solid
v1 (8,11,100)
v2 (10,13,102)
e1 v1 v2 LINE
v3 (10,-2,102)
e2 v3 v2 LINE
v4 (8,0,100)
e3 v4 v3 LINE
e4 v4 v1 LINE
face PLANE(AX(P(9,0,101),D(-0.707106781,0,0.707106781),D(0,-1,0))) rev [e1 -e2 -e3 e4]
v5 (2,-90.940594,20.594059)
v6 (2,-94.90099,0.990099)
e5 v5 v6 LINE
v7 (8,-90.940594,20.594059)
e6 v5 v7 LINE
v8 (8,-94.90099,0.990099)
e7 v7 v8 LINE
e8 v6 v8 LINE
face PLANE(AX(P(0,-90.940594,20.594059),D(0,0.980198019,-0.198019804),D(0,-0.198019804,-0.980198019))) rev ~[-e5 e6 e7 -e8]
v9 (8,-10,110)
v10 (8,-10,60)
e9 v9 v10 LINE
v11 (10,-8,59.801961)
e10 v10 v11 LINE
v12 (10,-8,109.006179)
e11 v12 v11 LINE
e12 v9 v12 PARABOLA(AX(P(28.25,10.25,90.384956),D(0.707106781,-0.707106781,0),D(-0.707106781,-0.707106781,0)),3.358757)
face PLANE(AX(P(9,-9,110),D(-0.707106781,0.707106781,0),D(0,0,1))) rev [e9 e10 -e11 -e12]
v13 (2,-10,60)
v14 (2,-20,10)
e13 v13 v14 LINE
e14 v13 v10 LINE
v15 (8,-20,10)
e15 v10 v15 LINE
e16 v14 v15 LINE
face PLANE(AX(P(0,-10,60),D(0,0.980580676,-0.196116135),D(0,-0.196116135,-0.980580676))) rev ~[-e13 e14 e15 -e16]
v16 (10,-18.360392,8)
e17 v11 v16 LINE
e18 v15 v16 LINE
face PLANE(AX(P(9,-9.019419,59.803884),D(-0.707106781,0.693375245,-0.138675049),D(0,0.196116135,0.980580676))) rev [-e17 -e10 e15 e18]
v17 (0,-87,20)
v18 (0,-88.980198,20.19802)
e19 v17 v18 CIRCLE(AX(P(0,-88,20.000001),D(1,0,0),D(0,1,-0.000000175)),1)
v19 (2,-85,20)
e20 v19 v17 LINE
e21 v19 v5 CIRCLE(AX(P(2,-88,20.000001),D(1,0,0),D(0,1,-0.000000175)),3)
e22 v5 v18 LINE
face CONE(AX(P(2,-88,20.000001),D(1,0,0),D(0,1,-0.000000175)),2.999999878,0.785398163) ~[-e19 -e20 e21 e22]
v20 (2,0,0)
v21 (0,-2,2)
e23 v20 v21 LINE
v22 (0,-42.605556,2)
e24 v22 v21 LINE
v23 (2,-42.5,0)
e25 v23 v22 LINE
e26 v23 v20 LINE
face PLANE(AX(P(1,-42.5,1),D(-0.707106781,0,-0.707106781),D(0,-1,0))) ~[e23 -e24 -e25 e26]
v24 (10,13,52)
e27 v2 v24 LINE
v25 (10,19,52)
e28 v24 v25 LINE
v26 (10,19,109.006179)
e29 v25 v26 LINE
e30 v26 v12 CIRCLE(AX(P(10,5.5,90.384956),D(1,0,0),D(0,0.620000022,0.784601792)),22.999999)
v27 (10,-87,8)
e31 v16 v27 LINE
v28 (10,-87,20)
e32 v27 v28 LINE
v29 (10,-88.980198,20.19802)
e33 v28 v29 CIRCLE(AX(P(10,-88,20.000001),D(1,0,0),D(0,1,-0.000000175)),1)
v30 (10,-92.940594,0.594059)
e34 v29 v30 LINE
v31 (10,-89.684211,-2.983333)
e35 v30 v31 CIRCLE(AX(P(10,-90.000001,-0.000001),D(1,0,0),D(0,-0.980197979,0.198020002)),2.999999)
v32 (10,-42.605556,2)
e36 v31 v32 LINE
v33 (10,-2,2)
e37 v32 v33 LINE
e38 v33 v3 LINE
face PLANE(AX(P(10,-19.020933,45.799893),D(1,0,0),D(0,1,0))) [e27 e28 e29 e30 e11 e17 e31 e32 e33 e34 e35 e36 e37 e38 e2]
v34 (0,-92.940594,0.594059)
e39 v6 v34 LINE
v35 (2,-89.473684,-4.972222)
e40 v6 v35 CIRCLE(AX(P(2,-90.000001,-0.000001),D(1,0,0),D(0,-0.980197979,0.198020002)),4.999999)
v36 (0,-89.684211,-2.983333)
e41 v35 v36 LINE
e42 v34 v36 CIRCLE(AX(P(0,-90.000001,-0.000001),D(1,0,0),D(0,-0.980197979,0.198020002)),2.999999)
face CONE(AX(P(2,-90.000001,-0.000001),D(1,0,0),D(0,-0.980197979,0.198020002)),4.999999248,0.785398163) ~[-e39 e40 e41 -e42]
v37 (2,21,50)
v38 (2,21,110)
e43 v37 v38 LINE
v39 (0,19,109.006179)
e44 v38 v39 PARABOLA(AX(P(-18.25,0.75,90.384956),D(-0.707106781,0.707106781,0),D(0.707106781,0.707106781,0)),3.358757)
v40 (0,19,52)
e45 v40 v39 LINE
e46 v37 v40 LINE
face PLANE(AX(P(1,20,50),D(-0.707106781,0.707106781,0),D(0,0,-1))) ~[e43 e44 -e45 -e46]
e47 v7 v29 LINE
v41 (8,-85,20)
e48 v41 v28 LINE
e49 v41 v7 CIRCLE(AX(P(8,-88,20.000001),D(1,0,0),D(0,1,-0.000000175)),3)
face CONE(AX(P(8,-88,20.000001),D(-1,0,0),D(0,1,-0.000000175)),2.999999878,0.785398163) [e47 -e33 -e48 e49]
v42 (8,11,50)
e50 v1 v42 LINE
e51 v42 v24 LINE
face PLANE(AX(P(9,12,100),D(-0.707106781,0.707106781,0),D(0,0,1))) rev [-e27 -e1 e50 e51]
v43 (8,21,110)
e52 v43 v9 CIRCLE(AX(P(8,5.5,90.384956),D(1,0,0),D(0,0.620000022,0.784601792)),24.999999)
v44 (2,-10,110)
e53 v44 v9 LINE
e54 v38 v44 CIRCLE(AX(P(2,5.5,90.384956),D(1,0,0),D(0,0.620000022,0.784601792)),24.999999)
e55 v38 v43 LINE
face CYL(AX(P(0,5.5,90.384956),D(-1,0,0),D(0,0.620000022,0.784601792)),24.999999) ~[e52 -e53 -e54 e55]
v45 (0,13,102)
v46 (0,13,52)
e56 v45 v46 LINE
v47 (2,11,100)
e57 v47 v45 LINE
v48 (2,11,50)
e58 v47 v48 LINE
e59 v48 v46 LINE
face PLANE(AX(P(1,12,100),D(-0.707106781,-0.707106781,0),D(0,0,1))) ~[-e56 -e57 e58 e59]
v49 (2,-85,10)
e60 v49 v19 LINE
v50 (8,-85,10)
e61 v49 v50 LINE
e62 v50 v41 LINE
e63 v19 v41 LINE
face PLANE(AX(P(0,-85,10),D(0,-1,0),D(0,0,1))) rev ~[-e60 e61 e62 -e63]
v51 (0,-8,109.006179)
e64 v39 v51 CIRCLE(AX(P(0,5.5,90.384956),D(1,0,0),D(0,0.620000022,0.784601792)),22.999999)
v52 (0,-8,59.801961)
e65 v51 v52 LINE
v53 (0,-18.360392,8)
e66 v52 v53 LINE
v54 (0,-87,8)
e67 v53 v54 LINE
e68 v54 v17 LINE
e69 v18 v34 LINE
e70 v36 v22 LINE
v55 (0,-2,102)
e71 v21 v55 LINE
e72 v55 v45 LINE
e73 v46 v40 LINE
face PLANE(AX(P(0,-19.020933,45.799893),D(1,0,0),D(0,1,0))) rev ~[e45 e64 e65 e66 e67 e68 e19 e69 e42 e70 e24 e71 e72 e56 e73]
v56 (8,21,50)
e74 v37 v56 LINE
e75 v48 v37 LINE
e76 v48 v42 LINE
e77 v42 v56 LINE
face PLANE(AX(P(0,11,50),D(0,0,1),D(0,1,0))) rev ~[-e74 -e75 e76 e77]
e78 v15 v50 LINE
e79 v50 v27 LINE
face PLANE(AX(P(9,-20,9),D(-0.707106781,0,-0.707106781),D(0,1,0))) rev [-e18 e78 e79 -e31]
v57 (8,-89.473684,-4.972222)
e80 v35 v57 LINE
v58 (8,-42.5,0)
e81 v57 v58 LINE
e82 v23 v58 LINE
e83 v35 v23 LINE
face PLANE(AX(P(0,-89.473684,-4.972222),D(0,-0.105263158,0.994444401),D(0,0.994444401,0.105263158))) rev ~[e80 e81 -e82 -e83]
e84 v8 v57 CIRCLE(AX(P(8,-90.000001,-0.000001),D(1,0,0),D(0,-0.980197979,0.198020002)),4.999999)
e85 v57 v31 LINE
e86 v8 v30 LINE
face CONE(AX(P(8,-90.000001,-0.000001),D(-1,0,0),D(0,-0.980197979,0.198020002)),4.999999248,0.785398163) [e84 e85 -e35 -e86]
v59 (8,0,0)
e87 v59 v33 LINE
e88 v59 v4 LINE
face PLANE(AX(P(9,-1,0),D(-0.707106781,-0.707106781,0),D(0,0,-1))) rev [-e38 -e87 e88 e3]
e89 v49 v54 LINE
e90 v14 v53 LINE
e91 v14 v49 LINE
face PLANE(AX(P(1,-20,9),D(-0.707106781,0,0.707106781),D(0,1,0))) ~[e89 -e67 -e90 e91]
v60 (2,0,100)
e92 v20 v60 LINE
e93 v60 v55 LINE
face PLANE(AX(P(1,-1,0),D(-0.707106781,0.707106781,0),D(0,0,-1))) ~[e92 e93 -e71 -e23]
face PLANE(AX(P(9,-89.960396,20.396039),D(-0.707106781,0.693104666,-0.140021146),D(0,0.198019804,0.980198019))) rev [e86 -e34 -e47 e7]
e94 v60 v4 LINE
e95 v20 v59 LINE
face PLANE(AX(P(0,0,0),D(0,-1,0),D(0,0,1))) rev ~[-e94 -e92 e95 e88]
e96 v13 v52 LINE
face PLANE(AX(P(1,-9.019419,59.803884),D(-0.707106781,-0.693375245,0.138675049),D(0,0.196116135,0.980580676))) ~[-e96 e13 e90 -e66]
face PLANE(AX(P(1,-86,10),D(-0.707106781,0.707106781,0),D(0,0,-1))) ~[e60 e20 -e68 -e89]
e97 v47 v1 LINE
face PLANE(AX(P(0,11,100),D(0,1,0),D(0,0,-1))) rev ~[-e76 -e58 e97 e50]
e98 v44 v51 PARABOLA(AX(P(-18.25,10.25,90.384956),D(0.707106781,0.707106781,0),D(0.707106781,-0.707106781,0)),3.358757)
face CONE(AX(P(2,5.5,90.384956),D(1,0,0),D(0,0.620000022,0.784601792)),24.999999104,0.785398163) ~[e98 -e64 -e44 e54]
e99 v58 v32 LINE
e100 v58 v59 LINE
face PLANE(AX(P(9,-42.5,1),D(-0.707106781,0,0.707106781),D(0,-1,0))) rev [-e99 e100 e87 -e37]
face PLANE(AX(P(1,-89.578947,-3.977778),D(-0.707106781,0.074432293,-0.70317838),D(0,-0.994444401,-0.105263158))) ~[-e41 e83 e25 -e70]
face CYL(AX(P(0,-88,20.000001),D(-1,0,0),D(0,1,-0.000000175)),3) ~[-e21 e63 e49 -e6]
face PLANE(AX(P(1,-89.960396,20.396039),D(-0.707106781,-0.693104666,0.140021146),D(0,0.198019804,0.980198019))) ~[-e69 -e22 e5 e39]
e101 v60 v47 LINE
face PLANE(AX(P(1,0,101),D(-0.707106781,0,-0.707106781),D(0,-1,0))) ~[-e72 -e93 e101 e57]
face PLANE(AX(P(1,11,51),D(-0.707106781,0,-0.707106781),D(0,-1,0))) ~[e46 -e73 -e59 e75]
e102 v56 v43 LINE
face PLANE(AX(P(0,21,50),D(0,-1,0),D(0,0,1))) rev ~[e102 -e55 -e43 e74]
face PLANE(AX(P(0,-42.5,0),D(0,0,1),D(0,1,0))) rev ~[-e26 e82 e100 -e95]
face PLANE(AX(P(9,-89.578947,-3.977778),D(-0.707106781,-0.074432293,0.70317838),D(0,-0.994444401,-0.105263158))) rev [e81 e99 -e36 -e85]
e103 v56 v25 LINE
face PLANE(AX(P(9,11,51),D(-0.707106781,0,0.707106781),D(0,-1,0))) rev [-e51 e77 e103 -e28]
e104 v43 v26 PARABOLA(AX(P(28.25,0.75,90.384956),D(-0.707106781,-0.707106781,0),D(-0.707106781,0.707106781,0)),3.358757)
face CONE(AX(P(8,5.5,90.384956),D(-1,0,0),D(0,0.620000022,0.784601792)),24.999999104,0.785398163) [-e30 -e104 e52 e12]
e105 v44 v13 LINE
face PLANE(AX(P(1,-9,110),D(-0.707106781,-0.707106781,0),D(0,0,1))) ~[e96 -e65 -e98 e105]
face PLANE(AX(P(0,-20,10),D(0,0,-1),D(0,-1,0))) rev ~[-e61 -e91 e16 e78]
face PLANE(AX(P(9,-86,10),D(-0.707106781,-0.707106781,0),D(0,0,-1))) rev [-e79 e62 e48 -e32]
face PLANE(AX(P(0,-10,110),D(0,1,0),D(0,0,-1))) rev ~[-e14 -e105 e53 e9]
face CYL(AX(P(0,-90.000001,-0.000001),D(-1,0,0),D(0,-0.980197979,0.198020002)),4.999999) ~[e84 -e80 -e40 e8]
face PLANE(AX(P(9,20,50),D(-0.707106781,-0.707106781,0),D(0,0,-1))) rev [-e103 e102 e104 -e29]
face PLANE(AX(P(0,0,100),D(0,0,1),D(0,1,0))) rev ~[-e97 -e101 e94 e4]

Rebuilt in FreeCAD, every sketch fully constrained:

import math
import FreeCAD as App
import Part
import Sketcher


def edges_at(feature, points):
    """Names of the edges that pass closest to the given points."""
    edges = feature.Shape.Edges
    near = lambda p: min(range(len(edges)), key=lambda i: edges[i].distToShape(Part.Vertex(*p))[0])
    return sorted({f"Edge{near(p) + 1}" for p in points})

doc = App.newDocument("Part")
body = doc.addObject("PartDesign::Body", "Body")

# Sketch on YZ plane
sketch1 = doc.addObject("Sketcher::SketchObject", "Sketch")
body.addObject(sketch1)
sketch1.AttachmentSupport = (doc.YZ_Plane, [""])
sketch1.MapMode = "FlatFace"
sketch1.addGeometry([
    Part.LineSegment(App.Vector(-42.5, 0, 0), App.Vector(0, 0, 0)),  # 0
    Part.LineSegment(App.Vector(0, 0, 0), App.Vector(0, 100, 0)),  # 1
    Part.LineSegment(App.Vector(0, 100, 0), App.Vector(11, 100, 0)),  # 2
    Part.LineSegment(App.Vector(11, 100, 0), App.Vector(11, 50, 0)),  # 3
    Part.LineSegment(App.Vector(11, 50, 0), App.Vector(21, 50, 0)),  # 4
    Part.LineSegment(App.Vector(21, 50, 0), App.Vector(21, 110, 0)),  # 5
    Part.ArcOfCircle(Part.Circle(App.Vector(5.5, 90.4, 0), App.Vector(0, 0, 1), 25), math.radians(52), math.radians(128)),  # 6
    Part.LineSegment(App.Vector(-10, 110, 0), App.Vector(-10, 60, 0)),  # 7
    Part.LineSegment(App.Vector(-10, 60, 0), App.Vector(-20, 10, 0)),  # 8
    Part.LineSegment(App.Vector(-20, 10, 0), App.Vector(-85, 10, 0)),  # 9
    Part.LineSegment(App.Vector(-85, 10, 0), App.Vector(-85, 20, 0)),  # 10
    Part.ArcOfCircle(Part.Circle(App.Vector(-88, 20, 0), App.Vector(0, 0, 1), 3), math.radians(0), math.radians(169)),  # 11
    Part.LineSegment(App.Vector(-90.9, 20.6, 0), App.Vector(-94.9, 1, 0)),  # 12
    Part.ArcOfCircle(Part.Circle(App.Vector(-90, 0, 0), App.Vector(0, 0, 1), 5), math.radians(169), math.radians(276)),  # 13
    Part.LineSegment(App.Vector(-89.5, -5, 0), App.Vector(-42.5, 0, 0)),  # 14
], False)
sketch1.addConstraint([
    Sketcher.Constraint("Coincident", 0, 2, 1, 1),
    Sketcher.Constraint("Coincident", 1, 2, 2, 1),
    Sketcher.Constraint("Coincident", 2, 2, 3, 1),
    Sketcher.Constraint("Coincident", 3, 2, 4, 1),
    Sketcher.Constraint("Coincident", 4, 2, 5, 1),
    Sketcher.Constraint("Coincident", 5, 2, 6, 1),
    Sketcher.Constraint("Coincident", 6, 2, 7, 1),
    Sketcher.Constraint("Coincident", 7, 2, 8, 1),
    Sketcher.Constraint("Coincident", 8, 2, 9, 1),
    Sketcher.Constraint("Coincident", 9, 2, 10, 1),
    Sketcher.Constraint("Tangent", 10, 2, 11, 1),
    Sketcher.Constraint("Tangent", 11, 2, 12, 1),
    Sketcher.Constraint("Tangent", 12, 2, 13, 1),
    Sketcher.Constraint("Tangent", 13, 2, 14, 1),
    Sketcher.Constraint("Coincident", 14, 2, 0, 1),
    Sketcher.Constraint("Horizontal", 0),
    Sketcher.Constraint("Vertical", 1),
    Sketcher.Constraint("Horizontal", 2),
    Sketcher.Constraint("Vertical", 3),
    Sketcher.Constraint("Horizontal", 4),
    Sketcher.Constraint("Vertical", 5),
    Sketcher.Constraint("Vertical", 7),
    Sketcher.Constraint("Horizontal", 9),
    Sketcher.Constraint("Vertical", 10),
    Sketcher.Constraint("Coincident", 0, 2, -1, 1),
    Sketcher.Constraint("PointOnObject", 13, 3, -1),
    Sketcher.Constraint("Horizontal", 5, 2, 6, 2),
    Sketcher.Constraint("Equal", 3, 7),
    Sketcher.Constraint("Equal", 4, 10),
    Sketcher.Constraint("Radius", 6, 24.999999),
    Sketcher.Constraint("Radius", 11, 3.0),
    Sketcher.Constraint("Radius", 13, 4.999999),
    Sketcher.Constraint("DistanceX", 2, 1, 2, 2, 11.0),
    Sketcher.Constraint("DistanceX", 4, 1, 4, 2, 10.0),
    Sketcher.Constraint("DistanceX", 9, 2, 9, 1, 65.0),
    Sketcher.Constraint("DistanceY", 1, 1, 1, 2, 100.0),
    Sketcher.Constraint("DistanceY", 3, 2, 3, 1, 50.0),
    Sketcher.Constraint("DistanceY", 5, 1, 5, 2, 60.0),
    Sketcher.Constraint("Distance", 12, 20.0),
    Sketcher.Constraint("DistanceX", 0, 1, 0, 2, 42.5),
    Sketcher.Constraint("DistanceX", 11, 3, -1, 1, 88.0),
    Sketcher.Constraint("DistanceY", -1, 1, 11, 3, 20.000001),
    Sketcher.Constraint("DistanceX", 6, 2, -1, 1, 10.0),
])
pad1 = doc.addObject("PartDesign::Pad", "Pad")
body.addObject(pad1)
pad1.Profile = sketch1
pad1.Length = 10
doc.recompute()

chamfer = doc.addObject("PartDesign::Chamfer", "Chamfer")
body.addObject(chamfer)
chamfer.Base = (pad1, edges_at(pad1, [
    (0, -93.698, -3.366),
    (0, -65.987, -2.486),
    (0, -21.25, 0),
    (0, 0, 50),
    (0, 5.5, 100),
    (0, 11, 75),
    (0, 16, 50),
    (0, 21, 80),
    (0, 5.5, 115.385),
    (0, -10, 85),
    (0, -15, 35),
    (0, -52.5, 10),
    (0, -85, 15),
    (0, -87.701, 22.985),
    (0, -92.921, 10.792),
    (10, -93.698, -3.366),
    (10, -65.987, -2.486),
    (10, -21.25, 0),
    (10, 0, 50),
    (10, 5.5, 100),
    (10, 11, 75),
    (10, 16, 50),
    (10, 21, 80),
    (10, 5.5, 115.385),
    (10, -10, 85),
    (10, -15, 35),
    (10, -52.5, 10),
    (10, -85, 15),
    (10, -87.701, 22.985),
    (10, -92.921, 10.792),
]))
chamfer.Size = 2

doc.recompute()
